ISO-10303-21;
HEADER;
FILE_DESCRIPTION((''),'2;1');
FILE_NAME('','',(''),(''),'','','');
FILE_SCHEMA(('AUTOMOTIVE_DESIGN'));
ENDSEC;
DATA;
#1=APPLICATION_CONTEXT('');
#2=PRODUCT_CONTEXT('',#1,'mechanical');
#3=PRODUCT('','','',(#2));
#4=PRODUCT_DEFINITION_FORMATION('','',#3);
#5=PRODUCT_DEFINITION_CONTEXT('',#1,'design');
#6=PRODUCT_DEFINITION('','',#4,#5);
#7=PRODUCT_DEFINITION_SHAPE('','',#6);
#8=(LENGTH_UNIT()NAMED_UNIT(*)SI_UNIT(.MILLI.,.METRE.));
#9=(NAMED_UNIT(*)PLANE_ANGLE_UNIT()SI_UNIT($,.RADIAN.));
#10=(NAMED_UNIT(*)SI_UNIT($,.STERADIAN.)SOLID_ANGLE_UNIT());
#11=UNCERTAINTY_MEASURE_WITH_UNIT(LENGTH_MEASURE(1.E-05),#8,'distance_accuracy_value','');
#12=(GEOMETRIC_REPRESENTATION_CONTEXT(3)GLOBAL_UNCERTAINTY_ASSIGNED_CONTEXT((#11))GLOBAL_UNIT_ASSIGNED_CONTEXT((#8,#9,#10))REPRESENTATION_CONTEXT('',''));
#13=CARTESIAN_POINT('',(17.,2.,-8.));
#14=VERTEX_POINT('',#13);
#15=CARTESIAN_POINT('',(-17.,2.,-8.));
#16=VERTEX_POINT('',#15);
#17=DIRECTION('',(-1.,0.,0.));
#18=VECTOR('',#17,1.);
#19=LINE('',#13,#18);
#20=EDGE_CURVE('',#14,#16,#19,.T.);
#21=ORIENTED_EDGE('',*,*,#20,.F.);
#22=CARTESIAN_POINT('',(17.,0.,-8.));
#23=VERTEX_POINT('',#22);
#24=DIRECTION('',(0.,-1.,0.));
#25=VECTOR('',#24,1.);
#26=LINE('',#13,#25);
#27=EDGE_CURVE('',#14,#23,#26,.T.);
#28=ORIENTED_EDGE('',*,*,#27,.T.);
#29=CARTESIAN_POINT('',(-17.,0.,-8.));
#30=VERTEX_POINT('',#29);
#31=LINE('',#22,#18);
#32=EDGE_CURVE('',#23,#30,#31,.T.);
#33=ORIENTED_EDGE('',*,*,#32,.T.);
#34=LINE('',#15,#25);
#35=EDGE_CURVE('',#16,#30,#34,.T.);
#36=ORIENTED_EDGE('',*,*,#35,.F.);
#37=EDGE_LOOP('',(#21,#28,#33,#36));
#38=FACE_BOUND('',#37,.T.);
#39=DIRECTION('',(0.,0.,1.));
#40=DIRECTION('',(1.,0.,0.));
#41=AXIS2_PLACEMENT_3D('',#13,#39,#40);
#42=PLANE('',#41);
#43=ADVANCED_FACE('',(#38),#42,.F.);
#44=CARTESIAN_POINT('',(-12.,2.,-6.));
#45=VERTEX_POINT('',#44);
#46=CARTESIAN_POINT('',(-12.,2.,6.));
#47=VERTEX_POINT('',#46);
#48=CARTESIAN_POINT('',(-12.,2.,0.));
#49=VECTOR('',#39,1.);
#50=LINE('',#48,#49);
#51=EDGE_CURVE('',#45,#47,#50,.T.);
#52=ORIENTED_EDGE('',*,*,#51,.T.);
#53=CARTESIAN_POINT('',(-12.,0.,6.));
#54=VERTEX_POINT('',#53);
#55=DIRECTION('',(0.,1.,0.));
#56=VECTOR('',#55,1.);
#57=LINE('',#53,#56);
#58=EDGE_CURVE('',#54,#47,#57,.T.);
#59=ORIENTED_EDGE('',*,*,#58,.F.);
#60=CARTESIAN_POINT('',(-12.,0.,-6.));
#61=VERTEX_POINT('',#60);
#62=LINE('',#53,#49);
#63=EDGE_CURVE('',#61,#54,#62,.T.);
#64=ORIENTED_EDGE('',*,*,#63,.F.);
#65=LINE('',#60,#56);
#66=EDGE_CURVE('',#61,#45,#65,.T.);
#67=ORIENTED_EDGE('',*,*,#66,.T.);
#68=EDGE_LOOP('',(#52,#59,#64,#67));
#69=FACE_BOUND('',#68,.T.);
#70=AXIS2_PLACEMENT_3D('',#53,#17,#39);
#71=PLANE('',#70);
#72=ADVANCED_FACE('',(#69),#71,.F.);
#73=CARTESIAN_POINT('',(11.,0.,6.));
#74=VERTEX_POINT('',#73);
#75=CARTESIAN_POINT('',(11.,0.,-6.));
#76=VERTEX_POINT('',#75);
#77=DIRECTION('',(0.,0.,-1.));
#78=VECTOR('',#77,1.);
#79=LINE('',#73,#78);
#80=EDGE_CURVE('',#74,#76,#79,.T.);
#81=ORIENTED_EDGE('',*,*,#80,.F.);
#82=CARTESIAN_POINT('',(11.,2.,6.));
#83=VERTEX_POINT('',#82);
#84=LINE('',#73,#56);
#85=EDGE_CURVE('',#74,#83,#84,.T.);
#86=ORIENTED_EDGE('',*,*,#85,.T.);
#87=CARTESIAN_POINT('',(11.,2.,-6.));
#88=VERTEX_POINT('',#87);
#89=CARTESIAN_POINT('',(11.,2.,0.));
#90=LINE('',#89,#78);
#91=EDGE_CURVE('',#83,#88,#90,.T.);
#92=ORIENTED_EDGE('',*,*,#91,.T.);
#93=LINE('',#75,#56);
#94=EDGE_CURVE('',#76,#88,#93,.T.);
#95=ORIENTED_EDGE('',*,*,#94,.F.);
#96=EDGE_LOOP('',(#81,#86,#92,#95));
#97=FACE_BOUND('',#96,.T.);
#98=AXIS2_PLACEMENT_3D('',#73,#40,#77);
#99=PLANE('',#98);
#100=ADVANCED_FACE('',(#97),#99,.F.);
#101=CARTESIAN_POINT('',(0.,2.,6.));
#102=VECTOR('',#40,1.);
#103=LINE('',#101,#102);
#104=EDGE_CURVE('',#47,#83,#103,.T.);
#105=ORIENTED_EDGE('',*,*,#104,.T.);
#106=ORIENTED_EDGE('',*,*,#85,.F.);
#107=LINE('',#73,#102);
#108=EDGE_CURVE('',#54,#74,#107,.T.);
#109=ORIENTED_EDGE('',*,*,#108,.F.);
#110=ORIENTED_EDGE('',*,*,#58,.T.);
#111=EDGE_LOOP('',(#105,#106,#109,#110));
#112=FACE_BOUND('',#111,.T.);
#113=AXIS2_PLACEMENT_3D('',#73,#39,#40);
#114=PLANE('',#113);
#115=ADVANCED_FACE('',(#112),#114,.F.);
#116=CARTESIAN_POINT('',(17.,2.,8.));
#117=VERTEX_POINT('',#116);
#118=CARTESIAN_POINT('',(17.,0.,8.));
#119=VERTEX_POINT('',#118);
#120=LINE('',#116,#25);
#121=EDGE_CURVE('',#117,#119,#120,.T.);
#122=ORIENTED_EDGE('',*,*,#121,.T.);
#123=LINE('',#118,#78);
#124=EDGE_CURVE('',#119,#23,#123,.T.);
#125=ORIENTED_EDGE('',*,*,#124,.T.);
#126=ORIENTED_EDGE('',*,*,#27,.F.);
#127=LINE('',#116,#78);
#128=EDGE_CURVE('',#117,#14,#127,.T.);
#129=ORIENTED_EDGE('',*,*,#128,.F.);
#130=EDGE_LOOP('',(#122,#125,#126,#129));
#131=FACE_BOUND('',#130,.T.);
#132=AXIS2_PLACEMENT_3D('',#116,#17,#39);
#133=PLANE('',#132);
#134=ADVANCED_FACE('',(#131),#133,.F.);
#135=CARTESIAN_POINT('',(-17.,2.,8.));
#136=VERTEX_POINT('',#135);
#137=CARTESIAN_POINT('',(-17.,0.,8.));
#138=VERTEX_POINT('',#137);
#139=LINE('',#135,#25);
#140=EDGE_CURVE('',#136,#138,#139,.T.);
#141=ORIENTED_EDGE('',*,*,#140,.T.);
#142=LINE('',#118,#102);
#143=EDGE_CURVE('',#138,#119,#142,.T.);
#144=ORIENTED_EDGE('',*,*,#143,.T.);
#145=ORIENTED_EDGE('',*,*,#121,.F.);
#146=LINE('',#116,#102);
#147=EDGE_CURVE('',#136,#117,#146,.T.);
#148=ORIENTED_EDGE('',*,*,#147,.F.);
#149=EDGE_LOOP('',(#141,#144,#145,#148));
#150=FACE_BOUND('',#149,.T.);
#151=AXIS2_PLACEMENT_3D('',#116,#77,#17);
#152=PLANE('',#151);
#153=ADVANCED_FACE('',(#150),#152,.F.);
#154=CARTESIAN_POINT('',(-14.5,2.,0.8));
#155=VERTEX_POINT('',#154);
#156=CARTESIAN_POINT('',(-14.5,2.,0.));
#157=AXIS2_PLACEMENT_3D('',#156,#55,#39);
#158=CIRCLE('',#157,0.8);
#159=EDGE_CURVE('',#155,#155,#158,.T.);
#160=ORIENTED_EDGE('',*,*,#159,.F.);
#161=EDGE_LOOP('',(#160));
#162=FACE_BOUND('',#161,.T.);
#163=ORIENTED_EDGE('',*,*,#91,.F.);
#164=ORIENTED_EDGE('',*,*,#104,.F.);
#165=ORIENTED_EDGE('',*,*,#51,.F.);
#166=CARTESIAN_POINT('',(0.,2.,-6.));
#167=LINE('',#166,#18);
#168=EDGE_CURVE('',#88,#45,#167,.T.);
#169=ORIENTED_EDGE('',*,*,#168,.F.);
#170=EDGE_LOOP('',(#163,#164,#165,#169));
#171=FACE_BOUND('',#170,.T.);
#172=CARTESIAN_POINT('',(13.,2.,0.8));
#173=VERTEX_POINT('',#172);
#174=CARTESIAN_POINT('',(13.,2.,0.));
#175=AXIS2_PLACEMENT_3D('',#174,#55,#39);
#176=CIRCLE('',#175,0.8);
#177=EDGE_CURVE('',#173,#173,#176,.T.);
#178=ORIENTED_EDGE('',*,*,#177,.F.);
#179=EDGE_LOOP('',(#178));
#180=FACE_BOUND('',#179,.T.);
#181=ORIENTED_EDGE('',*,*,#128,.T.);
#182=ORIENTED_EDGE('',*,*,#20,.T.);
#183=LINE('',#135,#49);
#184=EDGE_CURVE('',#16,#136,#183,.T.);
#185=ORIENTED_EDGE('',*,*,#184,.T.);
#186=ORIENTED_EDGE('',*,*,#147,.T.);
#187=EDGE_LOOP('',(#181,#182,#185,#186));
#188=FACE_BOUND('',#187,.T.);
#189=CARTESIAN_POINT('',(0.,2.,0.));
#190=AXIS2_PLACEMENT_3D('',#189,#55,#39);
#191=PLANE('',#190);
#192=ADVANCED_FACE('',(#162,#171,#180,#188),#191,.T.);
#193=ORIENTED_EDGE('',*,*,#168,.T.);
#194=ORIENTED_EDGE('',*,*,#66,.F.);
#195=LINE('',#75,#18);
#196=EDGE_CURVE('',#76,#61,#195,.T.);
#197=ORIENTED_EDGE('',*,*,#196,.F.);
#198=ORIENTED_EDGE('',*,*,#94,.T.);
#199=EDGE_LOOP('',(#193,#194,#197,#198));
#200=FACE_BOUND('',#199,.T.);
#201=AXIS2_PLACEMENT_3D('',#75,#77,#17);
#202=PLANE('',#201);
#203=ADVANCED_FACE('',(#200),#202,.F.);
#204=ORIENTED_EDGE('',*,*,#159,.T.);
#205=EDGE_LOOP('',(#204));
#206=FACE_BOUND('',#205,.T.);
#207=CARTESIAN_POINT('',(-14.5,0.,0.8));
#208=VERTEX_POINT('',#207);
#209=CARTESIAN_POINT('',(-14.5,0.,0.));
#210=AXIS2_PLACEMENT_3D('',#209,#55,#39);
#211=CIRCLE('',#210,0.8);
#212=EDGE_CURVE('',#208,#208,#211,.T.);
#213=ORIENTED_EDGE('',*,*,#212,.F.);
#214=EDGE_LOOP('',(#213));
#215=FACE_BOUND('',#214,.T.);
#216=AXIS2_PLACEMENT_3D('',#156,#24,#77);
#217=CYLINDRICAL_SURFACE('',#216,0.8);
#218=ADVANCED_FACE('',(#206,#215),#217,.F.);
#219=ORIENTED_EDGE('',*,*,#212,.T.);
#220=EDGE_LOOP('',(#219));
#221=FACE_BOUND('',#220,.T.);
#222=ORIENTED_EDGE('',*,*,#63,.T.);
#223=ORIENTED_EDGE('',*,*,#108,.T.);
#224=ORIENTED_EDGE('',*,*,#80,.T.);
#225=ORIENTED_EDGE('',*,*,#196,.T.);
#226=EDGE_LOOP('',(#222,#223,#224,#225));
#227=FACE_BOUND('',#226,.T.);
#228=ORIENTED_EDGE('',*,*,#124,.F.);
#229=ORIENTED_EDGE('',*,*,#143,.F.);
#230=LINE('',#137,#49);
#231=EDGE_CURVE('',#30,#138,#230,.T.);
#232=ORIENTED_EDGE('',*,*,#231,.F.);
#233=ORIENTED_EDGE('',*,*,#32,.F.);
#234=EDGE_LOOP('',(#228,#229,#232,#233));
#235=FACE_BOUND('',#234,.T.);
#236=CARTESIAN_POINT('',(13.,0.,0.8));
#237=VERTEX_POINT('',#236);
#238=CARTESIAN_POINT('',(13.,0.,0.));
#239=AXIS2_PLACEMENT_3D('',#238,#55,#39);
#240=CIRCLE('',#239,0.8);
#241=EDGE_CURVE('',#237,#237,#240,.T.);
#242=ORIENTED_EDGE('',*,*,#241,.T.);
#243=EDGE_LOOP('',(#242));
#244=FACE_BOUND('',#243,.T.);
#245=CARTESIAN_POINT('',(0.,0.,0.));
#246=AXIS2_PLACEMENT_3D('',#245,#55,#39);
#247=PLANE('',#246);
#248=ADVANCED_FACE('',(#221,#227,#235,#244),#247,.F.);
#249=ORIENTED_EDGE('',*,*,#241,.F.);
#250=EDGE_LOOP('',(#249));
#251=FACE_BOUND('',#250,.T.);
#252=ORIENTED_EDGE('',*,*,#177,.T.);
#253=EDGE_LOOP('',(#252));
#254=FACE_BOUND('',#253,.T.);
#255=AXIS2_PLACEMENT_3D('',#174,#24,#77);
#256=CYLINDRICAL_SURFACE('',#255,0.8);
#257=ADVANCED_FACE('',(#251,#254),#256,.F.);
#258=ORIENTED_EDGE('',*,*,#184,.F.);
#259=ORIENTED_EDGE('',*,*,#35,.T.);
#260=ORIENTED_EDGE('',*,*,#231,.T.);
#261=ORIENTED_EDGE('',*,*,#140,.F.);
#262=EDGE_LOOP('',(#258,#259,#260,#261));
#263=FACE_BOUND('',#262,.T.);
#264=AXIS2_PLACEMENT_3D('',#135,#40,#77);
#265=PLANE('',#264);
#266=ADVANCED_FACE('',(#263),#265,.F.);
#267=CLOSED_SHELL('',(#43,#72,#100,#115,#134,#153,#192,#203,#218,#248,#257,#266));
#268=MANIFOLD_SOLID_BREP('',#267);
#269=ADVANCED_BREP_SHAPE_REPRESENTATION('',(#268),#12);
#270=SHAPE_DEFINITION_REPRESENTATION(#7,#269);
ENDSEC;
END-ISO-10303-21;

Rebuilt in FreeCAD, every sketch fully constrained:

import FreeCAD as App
import Part
import Sketcher
from FreeCAD import Vector
Q = App.Units.Quantity

doc = App.newDocument("Part")
params = doc.addObject("Spreadsheet::Sheet", "Params")
for row, (alias, value) in enumerate([
    ("sketch1_width", "34 mm"),
    ("sketch1_height", "16 mm"),
    ("pad1_length", "2 mm"),
    ("sketch2_width", "23 mm"),
    ("sketch2_height", "12 mm"),
    ("sketch3_diameter", "1.6 mm"),
    ("pocket2_length", "2 mm"),
], start=1):
    params.set(f"A{row}", alias)
    params.set(f"B{row}", "=" + value)
    params.setAlias(f"B{row}", alias)

body = doc.addObject("PartDesign::Body", "Body")

# Sketch on XZ plane
sketch1 = body.newObject("Sketcher::SketchObject", "Sketch")
sketch1.AttachmentSupport = (doc.getObject("XZ_Plane"), [""])
sketch1.MapMode = "FlatFace"
sketch1.addGeometry(Part.LineSegment(Vector(-17, -8, 0), Vector(-17, 8, 0)), False)
sketch1.addGeometry(Part.LineSegment(Vector(-17, 8, 0), Vector(17, 8, 0)), False)
sketch1.addGeometry(Part.LineSegment(Vector(17, 8, 0), Vector(17, -8, 0)), False)
sketch1.addGeometry(Part.LineSegment(Vector(17, -8, 0), Vector(-17, -8, 0)), False)
sketch1.addConstraint(Sketcher.Constraint("Coincident", 0, 2, 1, 1))
sketch1.addConstraint(Sketcher.Constraint("Coincident", 1, 2, 2, 1))
sketch1.addConstraint(Sketcher.Constraint("Coincident", 2, 2, 3, 1))
sketch1.addConstraint(Sketcher.Constraint("Coincident", 3, 2, 0, 1))
sketch1.addConstraint(Sketcher.Constraint("Vertical", 0))
sketch1.addConstraint(Sketcher.Constraint("Horizontal", 1))
sketch1.addConstraint(Sketcher.Constraint("Vertical", 2))
sketch1.addConstraint(Sketcher.Constraint("Horizontal", 3))
sketch1.addConstraint(Sketcher.Constraint("Symmetric", 0, 2, 2, 2, -1, 1))
sketch1.addConstraint(Sketcher.Constraint("DistanceX", 1, 1, 1, 2, Q("34 mm")))
sketch1.addConstraint(Sketcher.Constraint("DistanceY", 0, 1, 0, 2, Q("16 mm")))
sketch1.setExpression("Constraints[9]", "Params.sketch1_width")
sketch1.setExpression("Constraints[10]", "Params.sketch1_height")
pad1 = body.newObject("PartDesign::Pad", "Pad")
pad1.Profile = sketch1
pad1.setExpression("Length", "Params.pad1_length")
pad1.Reversed = True

# Sketch on XZ plane
sketch2 = body.newObject("Sketcher::SketchObject", "Sketch001")
sketch2.AttachmentSupport = (doc.getObject("XZ_Plane"), [""])
sketch2.MapMode = "FlatFace"
sketch2.AttachmentOffset = App.Placement(Vector(0, 0, -2), App.Rotation())
sketch2.addGeometry(Part.LineSegment(Vector(-12, -6, 0), Vector(-12, 6, 0)), False)
sketch2.addGeometry(Part.LineSegment(Vector(-12, 6, 0), Vector(11, 6, 0)), False)
sketch2.addGeometry(Part.LineSegment(Vector(11, 6, 0), Vector(11, -6, 0)), False)
sketch2.addGeometry(Part.LineSegment(Vector(11, -6, 0), Vector(-12, -6, 0)), False)
sketch2.addConstraint(Sketcher.Constraint("Coincident", 0, 2, 1, 1))
sketch2.addConstraint(Sketcher.Constraint("Coincident", 1, 2, 2, 1))
sketch2.addConstraint(Sketcher.Constraint("Coincident", 2, 2, 3, 1))
sketch2.addConstraint(Sketcher.Constraint("Coincident", 3, 2, 0, 1))
sketch2.addConstraint(Sketcher.Constraint("Vertical", 0))
sketch2.addConstraint(Sketcher.Constraint("Horizontal", 1))
sketch2.addConstraint(Sketcher.Constraint("Vertical", 2))
sketch2.addConstraint(Sketcher.Constraint("Horizontal", 3))
sketch2.addConstraint(Sketcher.Constraint("DistanceX", 1, 1, 1, 2, Q("23 mm")))
sketch2.addConstraint(Sketcher.Constraint("DistanceY", 0, 1, 0, 2, Q("12 mm")))
sketch2.addConstraint(Sketcher.Constraint("DistanceX", 0, 2, -1, 1, Q("12 mm")))
sketch2.addConstraint(Sketcher.Constraint("DistanceY", -1, 1, 0, 2, Q("6 mm")))
sketch2.setExpression("Constraints[8]", "Params.sketch2_width")
sketch2.setExpression("Constraints[9]", "Params.sketch2_height")
pocket1 = body.newObject("PartDesign::Pocket", "Pocket")
pocket1.Profile = sketch2
pocket1.Type = "ThroughAll"
pocket1.Midplane = True

# Sketch on XZ plane
sketch3 = body.newObject("Sketcher::SketchObject", "Sketch002")
sketch3.AttachmentSupport = (doc.getObject("XZ_Plane"), [""])
sketch3.MapMode = "FlatFace"
sketch3.addGeometry(Part.Circle(Vector(-14.5, 0, 0), Vector(0, 0, 1), 0.8), False)
sketch3.addGeometry(Part.Circle(Vector(13, 0, 0), Vector(0, 0, 1), 0.8), False)
sketch3.addConstraint(Sketcher.Constraint("Equal", 0, 1))
sketch3.addConstraint(Sketcher.Constraint("PointOnObject", 0, 3, -1))
sketch3.addConstraint(Sketcher.Constraint("PointOnObject", 1, 3, -1))
sketch3.addConstraint(Sketcher.Constraint("Diameter", 0, Q("1.6 mm")))
sketch3.addConstraint(Sketcher.Constraint("DistanceX", -1, 1, 1, 3, Q("13 mm")))
sketch3.addConstraint(Sketcher.Constraint("DistanceX", 0, 3, -1, 1, Q("14.5 mm")))
sketch3.setExpression("Constraints[3]", "Params.sketch3_diameter")
pocket2 = body.newObject("PartDesign::Pocket", "Pocket001")
pocket2.Profile = sketch3
pocket2.setExpression("Length", "Params.pocket2_length")

doc.recompute()
